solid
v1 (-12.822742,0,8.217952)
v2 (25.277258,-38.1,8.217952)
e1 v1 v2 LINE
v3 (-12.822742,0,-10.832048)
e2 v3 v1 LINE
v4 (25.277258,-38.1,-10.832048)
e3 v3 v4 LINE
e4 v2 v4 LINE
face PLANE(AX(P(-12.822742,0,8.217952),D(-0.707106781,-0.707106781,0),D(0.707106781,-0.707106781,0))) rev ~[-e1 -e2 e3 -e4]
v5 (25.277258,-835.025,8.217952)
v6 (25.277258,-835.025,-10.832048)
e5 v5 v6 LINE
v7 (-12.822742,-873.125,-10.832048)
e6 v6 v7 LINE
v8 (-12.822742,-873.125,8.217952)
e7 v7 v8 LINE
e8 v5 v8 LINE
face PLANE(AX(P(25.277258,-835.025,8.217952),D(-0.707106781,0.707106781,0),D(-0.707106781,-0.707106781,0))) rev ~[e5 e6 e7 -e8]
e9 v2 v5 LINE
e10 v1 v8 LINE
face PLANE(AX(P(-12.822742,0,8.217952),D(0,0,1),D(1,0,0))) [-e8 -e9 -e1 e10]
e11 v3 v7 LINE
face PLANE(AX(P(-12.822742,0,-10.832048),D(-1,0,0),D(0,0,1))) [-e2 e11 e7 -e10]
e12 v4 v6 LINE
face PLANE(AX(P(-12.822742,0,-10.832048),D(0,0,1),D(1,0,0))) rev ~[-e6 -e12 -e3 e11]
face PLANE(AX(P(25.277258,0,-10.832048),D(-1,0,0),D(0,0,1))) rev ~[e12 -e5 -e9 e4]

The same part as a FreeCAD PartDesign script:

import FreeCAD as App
import Part
import Sketcher
from FreeCAD import Vector
Q = App.Units.Quantity

doc = App.newDocument("Part")
params = doc.addObject("Spreadsheet::Sheet", "Params")
for row, (alias, value) in enumerate([
    ("sketch1_width", "1.5 in"),
    ("sketch1_height", "0.75 in"),
    ("pad1_length", "34.375 in"),
    ("sketch2_width", "1.5 in"),
    ("pocket1_length", "1 in"),
], start=1):
    params.set(f"A{row}", alias)
    params.set(f"B{row}", "=" + value)
    params.setAlias(f"B{row}", alias)

body = doc.addObject("PartDesign::Body", "Body")

# Sketch on XZ plane
sketch1 = body.newObject("Sketcher::SketchObject", "Sketch")
sketch1.AttachmentSupport = (doc.getObject("XZ_Plane"), [""])
sketch1.MapMode = "FlatFace"
sketch1.addGeometry(Part.LineSegment(Vector(-13, 8, 0), Vector(-13, -11, 0)), False)
sketch1.addGeometry(Part.LineSegment(Vector(-13, -11, 0), Vector(25, -11, 0)), False)
sketch1.addGeometry(Part.LineSegment(Vector(25, -11, 0), Vector(25, 8, 0)), False)
sketch1.addGeometry(Part.LineSegment(Vector(25, 8, 0), Vector(-13, 8, 0)), False)
sketch1.addConstraint(Sketcher.Constraint("Coincident", 0, 2, 1, 1))
sketch1.addConstraint(Sketcher.Constraint("Coincident", 1, 2, 2, 1))
sketch1.addConstraint(Sketcher.Constraint("Coincident", 2, 2, 3, 1))
sketch1.addConstraint(Sketcher.Constraint("Coincident", 3, 2, 0, 1))
sketch1.addConstraint(Sketcher.Constraint("Vertical", 0))
sketch1.addConstraint(Sketcher.Constraint("Horizontal", 1))
sketch1.addConstraint(Sketcher.Constraint("Vertical", 2))
sketch1.addConstraint(Sketcher.Constraint("Horizontal", 3))
sketch1.addConstraint(Sketcher.Constraint("DistanceX", 1, 1, 1, 2, Q("1.5 in")))
sketch1.addConstraint(Sketcher.Constraint("DistanceY", 0, 2, 0, 1, Q("0.75 in")))
sketch1.addConstraint(Sketcher.Constraint("DistanceX", -1, 1, 1, 2, 25.277258))
sketch1.addConstraint(Sketcher.Constraint("DistanceY", 0, 2, -1, 1, 10.832048))
sketch1.setExpression("Constraints[8]", "Params.sketch1_width")
sketch1.setExpression("Constraints[9]", "Params.sketch1_height")
pad1 = body.newObject("PartDesign::Pad", "Pad")
pad1.Profile = sketch1
pad1.setExpression("Length", "Params.pad1_length")

# Sketch on XY plane
sketch2 = body.newObject("Sketcher::SketchObject", "Sketch001")
sketch2.AttachmentSupport = (doc.getObject("XY_Plane"), [""])
sketch2.MapMode = "FlatFace"
sketch2.AttachmentOffset = App.Placement(Vector(0, 0, 8.217952), App.Rotation())
sketch2.addGeometry(Part.LineSegment(Vector(25, -835, 0), Vector(-13, -873, 0)), False)
sketch2.addGeometry(Part.LineSegment(Vector(-13, -873, 0), Vector(25, -873, 0)), False)
sketch2.addGeometry(Part.LineSegment(Vector(25, -873, 0), Vector(25, -835, 0)), False)
sketch2.addGeometry(Part.LineSegment(Vector(25, -38, 0), Vector(25, 0, 0)), False)
sketch2.addGeometry(Part.LineSegment(Vector(25, 0, 0), Vector(-13, 0, 0)), False)
sketch2.addGeometry(Part.LineSegment(Vector(-13, 0, 0), Vector(25, -38, 0)), False)
sketch2.addConstraint(Sketcher.Constraint("Coincident", 0, 2, 1, 1))
sketch2.addConstraint(Sketcher.Constraint("Coincident", 1, 2, 2, 1))
sketch2.addConstraint(Sketcher.Constraint("Coincident", 2, 2, 0, 1))
sketch2.addConstraint(Sketcher.Constraint("Coincident", 3, 2, 4, 1))
sketch2.addConstraint(Sketcher.Constraint("Coincident", 4, 2, 5, 1))
sketch2.addConstraint(Sketcher.Constraint("Coincident", 5, 2, 3, 1))
sketch2.addConstraint(Sketcher.Constraint("Horizontal", 1))
sketch2.addConstraint(Sketcher.Constraint("Vertical", 2))
sketch2.addConstraint(Sketcher.Constraint("Vertical", 3))
sketch2.addConstraint(Sketcher.Constraint("Horizontal", 4))
sketch2.addConstraint(Sketcher.Constraint("PointOnObject", 3, 2, -1))
sketch2.addConstraint(Sketcher.Constraint("Perpendicular", 0, 5))
sketch2.addConstraint(Sketcher.Constraint("Vertical", 2, 2, 3, 2))
sketch2.addConstraint(Sketcher.Constraint("Vertical", 0, 2, 4, 2))
sketch2.addConstraint(Sketcher.Constraint("Equal", 4, 2))
sketch2.addConstraint(Sketcher.Constraint("DistanceX", 1, 1, 1, 2, Q("1.5 in")))
sketch2.addConstraint(Sketcher.Constraint("DistanceY", 0, 2, -1, 1, Q("34.375 in")))
sketch2.addConstraint(Sketcher.Constraint("DistanceX", -1, 1, 1, 2, 25.277258))
sketch2.setExpression("Constraints[15]", "Params.sketch2_width")
pocket1 = body.newObject("PartDesign::Pocket", "Pocket")
pocket1.Profile = sketch2
pocket1.setExpression("Length", "Params.pocket1_length")

doc.recompute()
